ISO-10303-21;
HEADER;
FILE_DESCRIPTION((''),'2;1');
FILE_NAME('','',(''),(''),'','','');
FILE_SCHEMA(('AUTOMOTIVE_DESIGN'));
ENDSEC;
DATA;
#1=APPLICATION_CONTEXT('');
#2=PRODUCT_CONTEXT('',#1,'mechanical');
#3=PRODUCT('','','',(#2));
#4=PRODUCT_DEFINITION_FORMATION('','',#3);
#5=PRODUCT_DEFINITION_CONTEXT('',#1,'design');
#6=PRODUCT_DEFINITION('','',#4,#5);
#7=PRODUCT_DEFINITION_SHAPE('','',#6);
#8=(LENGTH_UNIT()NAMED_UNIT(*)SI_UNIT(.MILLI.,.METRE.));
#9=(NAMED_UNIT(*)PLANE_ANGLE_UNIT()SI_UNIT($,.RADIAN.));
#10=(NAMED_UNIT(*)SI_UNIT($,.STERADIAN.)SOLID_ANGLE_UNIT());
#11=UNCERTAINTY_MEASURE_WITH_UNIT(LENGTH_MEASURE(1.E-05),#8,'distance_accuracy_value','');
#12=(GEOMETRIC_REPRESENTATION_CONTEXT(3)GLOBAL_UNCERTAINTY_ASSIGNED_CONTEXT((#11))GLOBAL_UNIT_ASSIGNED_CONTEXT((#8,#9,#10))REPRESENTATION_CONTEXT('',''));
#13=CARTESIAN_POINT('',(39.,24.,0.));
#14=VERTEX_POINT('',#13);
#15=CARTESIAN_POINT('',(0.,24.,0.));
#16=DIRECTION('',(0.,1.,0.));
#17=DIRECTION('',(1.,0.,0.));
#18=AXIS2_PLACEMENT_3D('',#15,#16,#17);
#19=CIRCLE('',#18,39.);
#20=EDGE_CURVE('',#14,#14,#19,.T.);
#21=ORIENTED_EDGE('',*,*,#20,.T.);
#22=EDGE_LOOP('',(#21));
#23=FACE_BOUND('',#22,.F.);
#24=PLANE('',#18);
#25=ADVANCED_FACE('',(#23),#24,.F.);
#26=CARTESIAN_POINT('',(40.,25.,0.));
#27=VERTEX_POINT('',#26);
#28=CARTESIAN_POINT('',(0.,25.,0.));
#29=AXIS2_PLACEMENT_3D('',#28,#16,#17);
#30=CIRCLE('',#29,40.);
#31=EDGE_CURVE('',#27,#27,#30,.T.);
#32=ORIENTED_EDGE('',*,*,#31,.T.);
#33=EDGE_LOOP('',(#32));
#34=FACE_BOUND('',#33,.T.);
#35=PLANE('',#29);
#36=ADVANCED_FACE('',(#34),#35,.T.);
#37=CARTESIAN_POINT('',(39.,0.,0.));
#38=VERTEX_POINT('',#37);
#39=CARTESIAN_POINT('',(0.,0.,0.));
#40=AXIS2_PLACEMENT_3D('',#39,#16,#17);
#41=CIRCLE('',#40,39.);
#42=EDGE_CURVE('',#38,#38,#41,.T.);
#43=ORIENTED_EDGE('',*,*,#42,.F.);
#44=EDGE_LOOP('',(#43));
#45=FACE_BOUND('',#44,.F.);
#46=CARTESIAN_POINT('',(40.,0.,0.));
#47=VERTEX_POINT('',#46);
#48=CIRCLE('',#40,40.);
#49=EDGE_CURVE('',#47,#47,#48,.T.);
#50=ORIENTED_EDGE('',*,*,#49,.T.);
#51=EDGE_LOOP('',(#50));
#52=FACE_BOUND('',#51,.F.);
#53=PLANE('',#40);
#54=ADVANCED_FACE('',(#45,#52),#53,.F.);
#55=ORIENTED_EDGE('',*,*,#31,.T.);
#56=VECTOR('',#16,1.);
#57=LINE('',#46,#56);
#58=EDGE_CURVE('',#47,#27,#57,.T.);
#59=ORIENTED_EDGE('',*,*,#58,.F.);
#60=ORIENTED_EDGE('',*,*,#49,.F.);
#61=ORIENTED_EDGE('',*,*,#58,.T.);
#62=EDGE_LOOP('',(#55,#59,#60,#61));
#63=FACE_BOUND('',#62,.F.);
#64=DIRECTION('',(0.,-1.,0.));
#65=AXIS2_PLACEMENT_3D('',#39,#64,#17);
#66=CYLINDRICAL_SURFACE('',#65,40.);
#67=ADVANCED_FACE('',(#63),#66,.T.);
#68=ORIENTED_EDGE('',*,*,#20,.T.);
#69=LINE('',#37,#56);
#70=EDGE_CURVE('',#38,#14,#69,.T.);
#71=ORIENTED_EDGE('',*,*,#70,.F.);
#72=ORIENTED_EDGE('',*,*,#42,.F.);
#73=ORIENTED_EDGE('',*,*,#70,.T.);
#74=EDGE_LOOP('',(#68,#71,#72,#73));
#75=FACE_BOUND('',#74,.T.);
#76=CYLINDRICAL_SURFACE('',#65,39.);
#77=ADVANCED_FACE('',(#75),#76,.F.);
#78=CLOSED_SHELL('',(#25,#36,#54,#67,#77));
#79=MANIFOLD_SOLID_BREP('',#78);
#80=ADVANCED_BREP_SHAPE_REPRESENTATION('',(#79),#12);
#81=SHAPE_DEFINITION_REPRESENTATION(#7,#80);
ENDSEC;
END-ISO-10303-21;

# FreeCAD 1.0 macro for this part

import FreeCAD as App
import Part
import Sketcher
from FreeCAD import Vector

doc = App.newDocument("Part")
body = doc.addObject("PartDesign::Body", "Body")

# Sketch on XZ plane
sketch1 = body.newObject("Sketcher::SketchObject", "Sketch")
sketch1.AttachmentSupport = (doc.getObject("XZ_Plane"), [""])
sketch1.MapMode = "FlatFace"
sketch1.addGeometry(Part.Circle(Vector(0, 0, 0), Vector(0, 0, 1), 40), False)
sketch1.addConstraint([
    Sketcher.Constraint("Coincident", 0, 3, -1, 1),
    Sketcher.Constraint("Diameter", 0, 80.0),
])
pad1 = body.newObject("PartDesign::Pad", "Pad")
pad1.Profile = sketch1
pad1.Length = 25
pad1.Reversed = True

# Sketch on XZ plane
sketch2 = body.newObject("Sketcher::SketchObject", "Sketch001")
sketch2.AttachmentSupport = (doc.getObject("XZ_Plane"), [""])
sketch2.MapMode = "FlatFace"
sketch2.addGeometry(Part.Circle(Vector(0, 0, 0), Vector(0, 0, 1), 39), False)
sketch2.addConstraint([
    Sketcher.Constraint("Coincident", 0, 3, -1, 1),
    Sketcher.Constraint("Diameter", 0, 78.0),
])
pocket1 = body.newObject("PartDesign::Pocket", "Pocket")
pocket1.Profile = sketch2
pocket1.Length = 24

doc.recompute()
